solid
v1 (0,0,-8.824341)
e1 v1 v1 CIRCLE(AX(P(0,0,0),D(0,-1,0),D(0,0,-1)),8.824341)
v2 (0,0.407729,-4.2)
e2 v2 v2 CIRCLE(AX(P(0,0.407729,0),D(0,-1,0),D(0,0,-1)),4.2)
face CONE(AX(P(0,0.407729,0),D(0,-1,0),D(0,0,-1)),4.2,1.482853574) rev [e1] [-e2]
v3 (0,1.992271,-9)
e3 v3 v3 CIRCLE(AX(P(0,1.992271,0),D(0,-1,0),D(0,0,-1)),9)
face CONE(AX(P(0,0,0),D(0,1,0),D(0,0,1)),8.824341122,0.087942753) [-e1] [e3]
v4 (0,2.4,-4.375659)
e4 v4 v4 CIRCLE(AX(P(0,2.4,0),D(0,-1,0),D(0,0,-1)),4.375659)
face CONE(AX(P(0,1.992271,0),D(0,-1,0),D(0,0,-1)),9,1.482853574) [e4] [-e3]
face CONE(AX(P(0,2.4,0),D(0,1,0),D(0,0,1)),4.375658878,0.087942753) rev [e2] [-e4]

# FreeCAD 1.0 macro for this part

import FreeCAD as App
import Part
import Sketcher
from FreeCAD import Vector
Q = App.Units.Quantity

doc = App.newDocument("Part")
body = doc.addObject("PartDesign::Body", "Body")

sketch1 = body.newObject("Sketcher::SketchObject", "Sketch")
sketch1.AttachmentSupport = (doc.getObject("XY_Plane"), [""])
sketch1.MapMode = "FlatFace"
sketch1.addGeometry(Part.LineSegment(Vector(4.2, 0.407729, 0), Vector(8.824341, 0, 0)), False)
sketch1.addGeometry(Part.LineSegment(Vector(8.824341, 0, 0), Vector(9, 1.992271, 0)), False)
sketch1.addGeometry(Part.LineSegment(Vector(9, 1.992271, 0), Vector(4.375659, 2.4, 0)), False)
sketch1.addGeometry(Part.LineSegment(Vector(4.375659, 2.4, 0), Vector(4.2, 0.407729, 0)), False)
sketch1.addConstraint(Sketcher.Constraint("Coincident", 0, 2, 1, 1))
sketch1.addConstraint(Sketcher.Constraint("Coincident", 1, 2, 2, 1))
sketch1.addConstraint(Sketcher.Constraint("Coincident", 2, 2, 3, 1))
sketch1.addConstraint(Sketcher.Constraint("Coincident", 3, 2, 0, 1))
sketch1.addConstraint(Sketcher.Constraint("PointOnObject", 0, 2, -1))
sketch1.addConstraint(Sketcher.Constraint("Perpendicular", 0, 1))
sketch1.addConstraint(Sketcher.Constraint("Perpendicular", 1, 2))
sketch1.addConstraint(Sketcher.Constraint("Perpendicular", 2, 3))
sketch1.addConstraint(Sketcher.Constraint("Distance", 1, Q("2 mm")))
sketch1.addConstraint(Sketcher.Constraint("DistanceX", -1, 1, 1, 2, Q("9 mm")))
sketch1.addConstraint(Sketcher.Constraint("DistanceY", -1, 1, 2, 2, Q("2.4 mm")))
sketch1.addConstraint(Sketcher.Constraint("DistanceX", -1, 1, 3, 2, Q("4.2 mm")))
revolution = body.newObject("PartDesign::Revolution", "Revolution")
revolution.Profile = sketch1
revolution.ReferenceAxis = (sketch1, ["V_Axis"])
revolution.Angle = 360

doc.recompute()
